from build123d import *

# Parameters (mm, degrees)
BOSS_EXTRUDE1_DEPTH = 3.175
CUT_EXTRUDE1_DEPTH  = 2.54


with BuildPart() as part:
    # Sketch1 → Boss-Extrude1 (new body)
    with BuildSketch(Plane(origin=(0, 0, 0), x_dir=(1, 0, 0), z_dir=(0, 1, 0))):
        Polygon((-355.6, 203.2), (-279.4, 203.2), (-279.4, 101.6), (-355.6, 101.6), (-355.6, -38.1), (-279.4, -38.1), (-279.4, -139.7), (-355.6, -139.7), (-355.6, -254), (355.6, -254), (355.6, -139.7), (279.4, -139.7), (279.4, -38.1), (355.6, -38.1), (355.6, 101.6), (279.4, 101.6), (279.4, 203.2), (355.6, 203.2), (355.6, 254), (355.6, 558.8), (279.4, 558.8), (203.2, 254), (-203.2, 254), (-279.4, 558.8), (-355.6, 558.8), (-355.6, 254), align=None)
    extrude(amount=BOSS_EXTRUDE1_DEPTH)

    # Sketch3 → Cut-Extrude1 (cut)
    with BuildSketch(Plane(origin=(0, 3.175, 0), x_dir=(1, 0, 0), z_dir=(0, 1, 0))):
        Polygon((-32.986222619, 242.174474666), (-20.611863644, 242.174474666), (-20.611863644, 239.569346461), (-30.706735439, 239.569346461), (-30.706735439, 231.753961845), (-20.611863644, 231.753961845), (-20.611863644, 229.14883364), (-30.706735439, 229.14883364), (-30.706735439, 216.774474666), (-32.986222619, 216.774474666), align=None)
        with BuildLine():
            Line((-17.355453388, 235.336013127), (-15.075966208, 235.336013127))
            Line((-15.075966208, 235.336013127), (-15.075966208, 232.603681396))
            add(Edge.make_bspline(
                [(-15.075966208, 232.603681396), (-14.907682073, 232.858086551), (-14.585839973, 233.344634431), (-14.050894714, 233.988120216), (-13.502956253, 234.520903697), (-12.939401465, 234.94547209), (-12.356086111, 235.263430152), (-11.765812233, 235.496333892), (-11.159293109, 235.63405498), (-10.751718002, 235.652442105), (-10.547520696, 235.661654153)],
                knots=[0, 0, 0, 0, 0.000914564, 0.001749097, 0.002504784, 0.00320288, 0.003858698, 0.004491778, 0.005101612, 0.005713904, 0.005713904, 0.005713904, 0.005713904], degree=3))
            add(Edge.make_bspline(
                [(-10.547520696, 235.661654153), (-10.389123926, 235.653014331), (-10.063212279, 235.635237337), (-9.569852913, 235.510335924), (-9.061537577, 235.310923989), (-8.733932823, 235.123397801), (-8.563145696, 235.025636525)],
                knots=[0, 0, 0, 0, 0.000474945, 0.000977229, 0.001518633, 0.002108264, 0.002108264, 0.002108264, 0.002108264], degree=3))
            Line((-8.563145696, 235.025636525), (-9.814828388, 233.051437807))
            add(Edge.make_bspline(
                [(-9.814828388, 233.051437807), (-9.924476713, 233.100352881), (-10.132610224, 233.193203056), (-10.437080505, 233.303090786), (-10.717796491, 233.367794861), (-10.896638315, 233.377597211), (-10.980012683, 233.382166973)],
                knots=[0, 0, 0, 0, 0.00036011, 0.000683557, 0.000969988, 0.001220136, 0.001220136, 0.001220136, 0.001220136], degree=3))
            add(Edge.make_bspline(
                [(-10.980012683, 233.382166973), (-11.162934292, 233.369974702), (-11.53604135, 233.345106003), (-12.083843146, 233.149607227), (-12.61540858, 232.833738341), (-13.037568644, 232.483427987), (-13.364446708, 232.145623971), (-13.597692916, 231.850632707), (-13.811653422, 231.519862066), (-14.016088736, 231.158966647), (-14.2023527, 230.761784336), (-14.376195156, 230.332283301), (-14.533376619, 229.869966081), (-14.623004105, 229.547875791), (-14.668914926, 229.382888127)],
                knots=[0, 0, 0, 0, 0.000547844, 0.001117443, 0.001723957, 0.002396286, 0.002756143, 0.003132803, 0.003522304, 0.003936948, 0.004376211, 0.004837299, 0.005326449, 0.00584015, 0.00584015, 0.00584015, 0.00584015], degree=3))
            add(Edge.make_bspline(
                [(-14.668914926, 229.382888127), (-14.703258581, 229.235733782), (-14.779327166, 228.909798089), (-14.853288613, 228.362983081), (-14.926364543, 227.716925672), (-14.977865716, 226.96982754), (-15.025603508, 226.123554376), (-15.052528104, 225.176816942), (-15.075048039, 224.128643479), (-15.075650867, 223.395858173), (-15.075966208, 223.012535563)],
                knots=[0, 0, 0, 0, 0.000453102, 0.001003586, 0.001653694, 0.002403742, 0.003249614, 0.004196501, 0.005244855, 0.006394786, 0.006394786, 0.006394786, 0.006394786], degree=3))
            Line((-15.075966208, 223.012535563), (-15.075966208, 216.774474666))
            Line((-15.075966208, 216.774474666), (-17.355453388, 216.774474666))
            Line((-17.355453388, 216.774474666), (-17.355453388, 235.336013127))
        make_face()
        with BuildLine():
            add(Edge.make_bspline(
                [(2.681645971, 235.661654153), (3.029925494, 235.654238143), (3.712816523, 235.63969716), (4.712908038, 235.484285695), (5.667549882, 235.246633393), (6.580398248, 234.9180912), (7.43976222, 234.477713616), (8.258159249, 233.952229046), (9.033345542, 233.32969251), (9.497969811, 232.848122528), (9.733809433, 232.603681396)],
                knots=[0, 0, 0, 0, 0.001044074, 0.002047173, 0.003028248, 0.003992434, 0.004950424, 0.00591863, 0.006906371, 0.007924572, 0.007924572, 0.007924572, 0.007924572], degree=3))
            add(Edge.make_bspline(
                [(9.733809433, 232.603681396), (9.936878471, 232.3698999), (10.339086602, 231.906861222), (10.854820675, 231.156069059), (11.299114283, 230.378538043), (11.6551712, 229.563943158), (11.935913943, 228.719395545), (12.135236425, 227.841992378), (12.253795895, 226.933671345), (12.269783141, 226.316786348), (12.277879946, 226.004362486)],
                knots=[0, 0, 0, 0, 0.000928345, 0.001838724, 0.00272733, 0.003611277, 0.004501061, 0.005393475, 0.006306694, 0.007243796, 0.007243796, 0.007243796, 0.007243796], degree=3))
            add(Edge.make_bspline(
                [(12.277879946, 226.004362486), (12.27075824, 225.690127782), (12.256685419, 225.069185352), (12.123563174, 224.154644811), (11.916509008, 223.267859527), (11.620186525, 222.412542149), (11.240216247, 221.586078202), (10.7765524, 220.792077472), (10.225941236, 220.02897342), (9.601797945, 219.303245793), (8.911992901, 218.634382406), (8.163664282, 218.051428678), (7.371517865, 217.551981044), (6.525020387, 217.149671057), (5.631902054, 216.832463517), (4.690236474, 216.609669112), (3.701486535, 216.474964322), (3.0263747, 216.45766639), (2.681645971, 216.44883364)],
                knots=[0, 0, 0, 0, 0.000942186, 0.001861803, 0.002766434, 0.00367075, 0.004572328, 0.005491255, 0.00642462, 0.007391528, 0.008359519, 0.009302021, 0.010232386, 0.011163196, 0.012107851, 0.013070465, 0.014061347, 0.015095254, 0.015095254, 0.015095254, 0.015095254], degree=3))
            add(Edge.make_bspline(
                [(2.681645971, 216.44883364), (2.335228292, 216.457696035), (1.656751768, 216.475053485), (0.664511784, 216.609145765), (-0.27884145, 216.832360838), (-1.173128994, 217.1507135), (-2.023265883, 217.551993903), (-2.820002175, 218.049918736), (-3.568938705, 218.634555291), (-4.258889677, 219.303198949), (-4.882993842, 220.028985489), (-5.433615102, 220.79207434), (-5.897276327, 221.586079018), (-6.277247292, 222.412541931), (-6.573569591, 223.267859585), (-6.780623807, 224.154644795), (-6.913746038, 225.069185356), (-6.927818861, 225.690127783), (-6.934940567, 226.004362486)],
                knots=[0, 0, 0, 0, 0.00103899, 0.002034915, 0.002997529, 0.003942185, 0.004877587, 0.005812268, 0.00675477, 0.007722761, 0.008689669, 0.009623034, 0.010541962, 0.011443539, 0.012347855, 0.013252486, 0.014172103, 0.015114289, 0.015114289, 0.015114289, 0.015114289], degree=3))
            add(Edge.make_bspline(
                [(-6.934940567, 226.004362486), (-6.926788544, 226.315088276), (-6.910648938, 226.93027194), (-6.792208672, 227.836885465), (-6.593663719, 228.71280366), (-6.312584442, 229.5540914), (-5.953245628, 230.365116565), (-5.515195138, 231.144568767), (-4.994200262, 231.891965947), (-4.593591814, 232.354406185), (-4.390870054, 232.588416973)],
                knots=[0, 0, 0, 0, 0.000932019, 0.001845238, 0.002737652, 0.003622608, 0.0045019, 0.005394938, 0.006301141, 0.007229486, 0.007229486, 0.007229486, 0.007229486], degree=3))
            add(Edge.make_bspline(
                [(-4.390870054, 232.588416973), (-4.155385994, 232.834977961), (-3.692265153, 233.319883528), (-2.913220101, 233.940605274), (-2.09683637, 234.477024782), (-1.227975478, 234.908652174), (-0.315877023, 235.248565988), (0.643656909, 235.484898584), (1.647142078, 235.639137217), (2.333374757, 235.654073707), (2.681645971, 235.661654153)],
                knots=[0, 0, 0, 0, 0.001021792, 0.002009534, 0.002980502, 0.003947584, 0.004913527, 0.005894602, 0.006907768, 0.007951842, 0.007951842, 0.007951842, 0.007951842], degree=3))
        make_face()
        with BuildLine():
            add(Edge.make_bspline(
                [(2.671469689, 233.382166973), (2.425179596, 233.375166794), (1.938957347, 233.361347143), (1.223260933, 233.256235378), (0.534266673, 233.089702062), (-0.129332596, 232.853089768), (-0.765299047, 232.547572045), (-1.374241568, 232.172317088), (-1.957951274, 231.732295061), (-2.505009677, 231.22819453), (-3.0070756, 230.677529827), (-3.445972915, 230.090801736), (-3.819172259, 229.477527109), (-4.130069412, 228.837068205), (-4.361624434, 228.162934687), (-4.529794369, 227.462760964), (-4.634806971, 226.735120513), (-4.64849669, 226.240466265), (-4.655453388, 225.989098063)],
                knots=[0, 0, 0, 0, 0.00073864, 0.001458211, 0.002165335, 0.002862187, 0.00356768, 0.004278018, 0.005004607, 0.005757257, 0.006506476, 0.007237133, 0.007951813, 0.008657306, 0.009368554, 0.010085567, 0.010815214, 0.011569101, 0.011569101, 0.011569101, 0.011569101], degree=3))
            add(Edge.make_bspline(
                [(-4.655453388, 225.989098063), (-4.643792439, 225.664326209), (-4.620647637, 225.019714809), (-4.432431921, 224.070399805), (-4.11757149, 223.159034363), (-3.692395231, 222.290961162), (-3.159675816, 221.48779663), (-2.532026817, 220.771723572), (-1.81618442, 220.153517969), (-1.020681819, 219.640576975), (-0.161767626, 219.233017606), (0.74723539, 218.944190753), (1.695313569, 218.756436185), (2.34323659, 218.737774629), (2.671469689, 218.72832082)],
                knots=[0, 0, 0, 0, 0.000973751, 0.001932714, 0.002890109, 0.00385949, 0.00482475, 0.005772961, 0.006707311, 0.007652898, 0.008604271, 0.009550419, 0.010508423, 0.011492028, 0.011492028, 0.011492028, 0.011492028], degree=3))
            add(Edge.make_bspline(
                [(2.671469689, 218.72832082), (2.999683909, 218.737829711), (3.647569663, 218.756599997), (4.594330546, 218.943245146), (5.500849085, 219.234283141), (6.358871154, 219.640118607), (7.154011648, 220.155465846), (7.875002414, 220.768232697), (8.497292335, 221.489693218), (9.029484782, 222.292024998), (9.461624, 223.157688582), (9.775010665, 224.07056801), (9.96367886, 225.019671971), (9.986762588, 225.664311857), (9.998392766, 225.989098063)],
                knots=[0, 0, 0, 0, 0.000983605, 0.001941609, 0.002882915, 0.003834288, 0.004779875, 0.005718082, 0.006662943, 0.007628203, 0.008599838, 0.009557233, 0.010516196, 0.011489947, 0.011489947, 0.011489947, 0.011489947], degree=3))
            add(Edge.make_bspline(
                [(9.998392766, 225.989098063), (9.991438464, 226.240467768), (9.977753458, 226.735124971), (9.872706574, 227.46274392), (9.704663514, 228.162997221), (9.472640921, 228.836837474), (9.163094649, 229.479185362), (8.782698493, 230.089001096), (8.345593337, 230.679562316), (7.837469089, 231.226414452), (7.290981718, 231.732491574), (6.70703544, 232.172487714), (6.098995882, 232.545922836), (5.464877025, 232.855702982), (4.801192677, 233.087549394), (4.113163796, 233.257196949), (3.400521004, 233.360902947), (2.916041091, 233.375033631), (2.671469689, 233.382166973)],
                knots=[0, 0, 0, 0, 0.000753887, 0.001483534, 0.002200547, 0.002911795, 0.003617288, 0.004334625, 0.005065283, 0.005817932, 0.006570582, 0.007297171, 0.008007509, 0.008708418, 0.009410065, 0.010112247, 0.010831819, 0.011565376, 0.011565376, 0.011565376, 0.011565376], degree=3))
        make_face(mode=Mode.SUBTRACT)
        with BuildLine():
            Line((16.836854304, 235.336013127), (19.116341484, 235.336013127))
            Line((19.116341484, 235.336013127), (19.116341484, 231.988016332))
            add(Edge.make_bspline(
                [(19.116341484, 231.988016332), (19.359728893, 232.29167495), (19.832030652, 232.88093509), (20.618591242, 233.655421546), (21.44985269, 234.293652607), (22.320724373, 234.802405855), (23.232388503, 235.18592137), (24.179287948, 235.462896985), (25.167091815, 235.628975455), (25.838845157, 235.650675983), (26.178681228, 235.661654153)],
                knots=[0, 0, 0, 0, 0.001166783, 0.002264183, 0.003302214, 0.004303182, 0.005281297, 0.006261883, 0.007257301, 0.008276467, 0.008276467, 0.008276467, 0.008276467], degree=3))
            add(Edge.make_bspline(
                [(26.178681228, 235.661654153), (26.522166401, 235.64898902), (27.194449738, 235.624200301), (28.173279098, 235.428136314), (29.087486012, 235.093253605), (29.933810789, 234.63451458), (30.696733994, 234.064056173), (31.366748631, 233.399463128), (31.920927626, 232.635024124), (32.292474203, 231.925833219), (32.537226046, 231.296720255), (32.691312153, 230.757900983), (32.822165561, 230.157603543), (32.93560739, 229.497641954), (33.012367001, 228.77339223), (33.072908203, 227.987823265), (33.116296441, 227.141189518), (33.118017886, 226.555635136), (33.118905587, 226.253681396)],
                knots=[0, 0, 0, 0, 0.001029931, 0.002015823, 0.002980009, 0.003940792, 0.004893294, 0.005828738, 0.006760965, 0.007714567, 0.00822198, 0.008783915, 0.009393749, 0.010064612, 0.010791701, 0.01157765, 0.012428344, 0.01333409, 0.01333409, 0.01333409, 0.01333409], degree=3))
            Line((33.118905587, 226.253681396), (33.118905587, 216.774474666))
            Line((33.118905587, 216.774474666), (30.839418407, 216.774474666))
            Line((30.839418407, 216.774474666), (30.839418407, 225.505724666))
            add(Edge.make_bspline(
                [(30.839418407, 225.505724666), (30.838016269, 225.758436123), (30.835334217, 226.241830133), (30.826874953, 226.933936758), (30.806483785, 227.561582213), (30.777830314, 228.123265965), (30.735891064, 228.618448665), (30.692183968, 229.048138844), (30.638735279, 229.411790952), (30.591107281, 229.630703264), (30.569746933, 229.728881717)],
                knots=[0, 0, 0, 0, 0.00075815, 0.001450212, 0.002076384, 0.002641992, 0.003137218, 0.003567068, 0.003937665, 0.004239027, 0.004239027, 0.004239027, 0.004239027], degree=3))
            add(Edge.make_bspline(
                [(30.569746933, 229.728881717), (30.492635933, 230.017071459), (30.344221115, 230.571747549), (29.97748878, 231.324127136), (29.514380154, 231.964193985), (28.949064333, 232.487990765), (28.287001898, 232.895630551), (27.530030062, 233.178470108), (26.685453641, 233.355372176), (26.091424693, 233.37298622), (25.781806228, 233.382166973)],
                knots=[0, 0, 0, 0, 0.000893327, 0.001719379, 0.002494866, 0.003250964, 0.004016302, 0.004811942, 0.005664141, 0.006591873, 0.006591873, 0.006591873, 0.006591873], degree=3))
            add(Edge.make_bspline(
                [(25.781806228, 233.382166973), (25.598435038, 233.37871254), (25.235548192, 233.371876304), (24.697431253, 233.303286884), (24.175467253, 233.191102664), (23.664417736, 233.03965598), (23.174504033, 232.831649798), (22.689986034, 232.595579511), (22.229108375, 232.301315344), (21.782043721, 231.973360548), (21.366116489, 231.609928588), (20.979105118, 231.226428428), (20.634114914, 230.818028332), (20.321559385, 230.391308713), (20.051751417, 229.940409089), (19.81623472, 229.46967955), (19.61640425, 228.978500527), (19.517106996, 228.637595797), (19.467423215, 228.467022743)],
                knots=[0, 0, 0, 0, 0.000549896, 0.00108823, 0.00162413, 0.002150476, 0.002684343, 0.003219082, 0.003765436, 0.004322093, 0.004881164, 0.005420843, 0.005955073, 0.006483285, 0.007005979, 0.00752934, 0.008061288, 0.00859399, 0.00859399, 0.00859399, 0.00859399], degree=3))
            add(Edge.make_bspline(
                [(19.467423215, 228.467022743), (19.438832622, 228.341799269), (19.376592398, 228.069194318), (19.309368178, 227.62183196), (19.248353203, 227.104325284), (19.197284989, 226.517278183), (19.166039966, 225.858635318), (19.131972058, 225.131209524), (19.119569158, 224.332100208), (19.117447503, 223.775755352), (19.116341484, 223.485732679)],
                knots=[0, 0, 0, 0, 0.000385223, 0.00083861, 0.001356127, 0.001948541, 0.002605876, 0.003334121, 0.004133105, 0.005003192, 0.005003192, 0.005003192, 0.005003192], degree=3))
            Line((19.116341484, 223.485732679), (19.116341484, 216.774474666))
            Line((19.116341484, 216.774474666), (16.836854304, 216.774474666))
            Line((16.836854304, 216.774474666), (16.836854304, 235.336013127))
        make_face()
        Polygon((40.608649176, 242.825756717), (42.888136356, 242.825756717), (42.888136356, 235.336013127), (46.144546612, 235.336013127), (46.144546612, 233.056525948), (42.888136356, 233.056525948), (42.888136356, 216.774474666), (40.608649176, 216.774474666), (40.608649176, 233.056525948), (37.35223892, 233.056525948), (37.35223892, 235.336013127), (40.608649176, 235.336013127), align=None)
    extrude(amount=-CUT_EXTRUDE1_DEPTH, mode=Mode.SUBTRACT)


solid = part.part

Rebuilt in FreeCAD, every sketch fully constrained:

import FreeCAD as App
import Part
import Sketcher
Q = App.Units.Quantity

doc = App.newDocument("Part")
body = doc.addObject("PartDesign::Body", "Body")

# Sketch on XZ plane
sketch1 = body.newObject("Sketcher::SketchObject", "Sketch")
sketch1.AttachmentSupport = (doc.getObject("XZ_Plane"), [""])
sketch1.MapMode = "FlatFace"
sketch1.addGeometry(Part.LineSegment(App.Vector(-356, -203, 0), App.Vector(-279, -203, 0)), False)
sketch1.addGeometry(Part.LineSegment(App.Vector(-279, -203, 0), App.Vector(-279, -102, 0)), False)
sketch1.addGeometry(Part.LineSegment(App.Vector(-279, -102, 0), App.Vector(-356, -102, 0)), False)
sketch1.addGeometry(Part.LineSegment(App.Vector(-356, -102, 0), App.Vector(-356, 38, 0)), False)
sketch1.addGeometry(Part.LineSegment(App.Vector(-356, 38, 0), App.Vector(-279, 38, 0)), False)
sketch1.addGeometry(Part.LineSegment(App.Vector(-279, 38, 0), App.Vector(-279, 140, 0)), False)
sketch1.addGeometry(Part.LineSegment(App.Vector(-279, 140, 0), App.Vector(-356, 140, 0)), False)
sketch1.addGeometry(Part.LineSegment(App.Vector(-356, 140, 0), App.Vector(-356, 254, 0)), False)
sketch1.addGeometry(Part.LineSegment(App.Vector(-356, 254, 0), App.Vector(356, 254, 0)), False)
sketch1.addGeometry(Part.LineSegment(App.Vector(356, 254, 0), App.Vector(356, 140, 0)), False)
sketch1.addGeometry(Part.LineSegment(App.Vector(356, 140, 0), App.Vector(279, 140, 0)), False)
sketch1.addGeometry(Part.LineSegment(App.Vector(279, 140, 0), App.Vector(279, 38, 0)), False)
sketch1.addGeometry(Part.LineSegment(App.Vector(279, 38, 0), App.Vector(356, 38, 0)), False)
sketch1.addGeometry(Part.LineSegment(App.Vector(356, 38, 0), App.Vector(356, -102, 0)), False)
sketch1.addGeometry(Part.LineSegment(App.Vector(356, -102, 0), App.Vector(279, -102, 0)), False)
sketch1.addGeometry(Part.LineSegment(App.Vector(279, -102, 0), App.Vector(279, -203, 0)), False)
sketch1.addGeometry(Part.LineSegment(App.Vector(279, -203, 0), App.Vector(356, -203, 0)), False)
sketch1.addGeometry(Part.LineSegment(App.Vector(356, -203, 0), App.Vector(356, -559, 0)), False)
sketch1.addGeometry(Part.LineSegment(App.Vector(356, -559, 0), App.Vector(279, -559, 0)), False)
sketch1.addGeometry(Part.LineSegment(App.Vector(279, -559, 0), App.Vector(203, -254, 0)), False)
sketch1.addGeometry(Part.LineSegment(App.Vector(203, -254, 0), App.Vector(-203, -254, 0)), False)
sketch1.addGeometry(Part.LineSegment(App.Vector(-203, -254, 0), App.Vector(-279, -559, 0)), False)
sketch1.addGeometry(Part.LineSegment(App.Vector(-279, -559, 0), App.Vector(-356, -559, 0)), False)
sketch1.addGeometry(Part.LineSegment(App.Vector(-356, -559, 0), App.Vector(-356, -203, 0)), False)
sketch1.addConstraint(Sketcher.Constraint("Coincident", 0, 2, 1, 1))
sketch1.addConstraint(Sketcher.Constraint("Coincident", 1, 2, 2, 1))
sketch1.addConstraint(Sketcher.Constraint("Coincident", 2, 2, 3, 1))
sketch1.addConstraint(Sketcher.Constraint("Coincident", 3, 2, 4, 1))
sketch1.addConstraint(Sketcher.Constraint("Coincident", 4, 2, 5, 1))
sketch1.addConstraint(Sketcher.Constraint("Coincident", 5, 2, 6, 1))
sketch1.addConstraint(Sketcher.Constraint("Coincident", 6, 2, 7, 1))
sketch1.addConstraint(Sketcher.Constraint("Coincident", 7, 2, 8, 1))
sketch1.addConstraint(Sketcher.Constraint("Coincident", 8, 2, 9, 1))
sketch1.addConstraint(Sketcher.Constraint("Coincident", 9, 2, 10, 1))
sketch1.addConstraint(Sketcher.Constraint("Coincident", 10, 2, 11, 1))
sketch1.addConstraint(Sketcher.Constraint("Coincident", 11, 2, 12, 1))
sketch1.addConstraint(Sketcher.Constraint("Coincident", 12, 2, 13, 1))
sketch1.addConstraint(Sketcher.Constraint("Coincident", 13, 2, 14, 1))
sketch1.addConstraint(Sketcher.Constraint("Coincident", 14, 2, 15, 1))
sketch1.addConstraint(Sketcher.Constraint("Coincident", 15, 2, 16, 1))
sketch1.addConstraint(Sketcher.Constraint("Coincident", 16, 2, 17, 1))
sketch1.addConstraint(Sketcher.Constraint("Coincident", 17, 2, 18, 1))
sketch1.addConstraint(Sketcher.Constraint("Coincident", 18, 2, 19, 1))
sketch1.addConstraint(Sketcher.Constraint("Coincident", 19, 2, 20, 1))
sketch1.addConstraint(Sketcher.Constraint("Coincident", 20, 2, 21, 1))
sketch1.addConstraint(Sketcher.Constraint("Coincident", 21, 2, 22, 1))
sketch1.addConstraint(Sketcher.Constraint("Coincident", 22, 2, 23, 1))
sketch1.addConstraint(Sketcher.Constraint("Coincident", 23, 2, 0, 1))
sketch1.addConstraint(Sketcher.Constraint("Horizontal", 0))
sketch1.addConstraint(Sketcher.Constraint("Vertical", 1))
sketch1.addConstraint(Sketcher.Constraint("Horizontal", 2))
sketch1.addConstraint(Sketcher.Constraint("Vertical", 3))
sketch1.addConstraint(Sketcher.Constraint("Horizontal", 4))
sketch1.addConstraint(Sketcher.Constraint("Vertical", 5))
sketch1.addConstraint(Sketcher.Constraint("Horizontal", 6))
sketch1.addConstraint(Sketcher.Constraint("Vertical", 7))
sketch1.addConstraint(Sketcher.Constraint("Horizontal", 8))
sketch1.addConstraint(Sketcher.Constraint("Vertical", 9))
sketch1.addConstraint(Sketcher.Constraint("Horizontal", 10))
sketch1.addConstraint(Sketcher.Constraint("Vertical", 11))
sketch1.addConstraint(Sketcher.Constraint("Horizontal", 12))
sketch1.addConstraint(Sketcher.Constraint("Vertical", 13))
sketch1.addConstraint(Sketcher.Constraint("Horizontal", 14))
sketch1.addConstraint(Sketcher.Constraint("Vertical", 15))
sketch1.addConstraint(Sketcher.Constraint("Horizontal", 16))
sketch1.addConstraint(Sketcher.Constraint("Vertical", 17))
sketch1.addConstraint(Sketcher.Constraint("Horizontal", 18))
sketch1.addConstraint(Sketcher.Constraint("Horizontal", 20))
sketch1.addConstraint(Sketcher.Constraint("Horizontal", 22))
sketch1.addConstraint(Sketcher.Constraint("Vertical", 23))
sketch1.addConstraint(Sketcher.Constraint("Symmetric", 6, 2, 9, 2, -2))
sketch1.addConstraint(Sketcher.Constraint("Symmetric", 4, 2, 11, 2, -2))
sketch1.addConstraint(Sketcher.Constraint("Symmetric", 2, 2, 13, 2, -2))
sketch1.addConstraint(Sketcher.Constraint("Symmetric", 0, 2, 15, 2, -2))
sketch1.addConstraint(Sketcher.Constraint("Symmetric", 18, 2, 21, 2, -2))
sketch1.addConstraint(Sketcher.Constraint("Vertical", 1, 2, 4, 2))
sketch1.addConstraint(Sketcher.Constraint("Vertical", 3, 2, 6, 2))
sketch1.addConstraint(Sketcher.Constraint("Vertical", 13, 2, 16, 2))
sketch1.addConstraint(Sketcher.Constraint("Vertical", 15, 2, 18, 2))
sketch1.addConstraint(Sketcher.Constraint("Vertical", 7, 2, 22, 2))
sketch1.addConstraint(Sketcher.Constraint("Equal", 1, 5))
sketch1.addConstraint(Sketcher.Constraint("Equal", 19, 21))
sketch1.addConstraint(Sketcher.Constraint("DistanceX", 0, 1, 0, 2, Q("3 in")))
sketch1.addConstraint(Sketcher.Constraint("DistanceX", 8, 1, 8, 2, Q("28 in")))
sketch1.addConstraint(Sketcher.Constraint("DistanceX", 20, 2, 20, 1, Q("16 in")))
sketch1.addConstraint(Sketcher.Constraint("DistanceY", 1, 1, 1, 2, Q("4 in")))
sketch1.addConstraint(Sketcher.Constraint("DistanceY", 17, 2, 17, 1, Q("14 in")))
sketch1.addConstraint(Sketcher.Constraint("DistanceY", 3, 1, 3, 2, Q("5.5 in")))
sketch1.addConstraint(Sketcher.Constraint("DistanceY", 7, 1, 7, 2, Q("4.5 in")))
sketch1.addConstraint(Sketcher.Constraint("DistanceY", 0, 2, -1, 1, Q("8 in")))
sketch1.addConstraint(Sketcher.Constraint("DistanceY", 19, 2, -1, 1, Q("10 in")))
pad1 = body.newObject("PartDesign::Pad", "Pad")
pad1.Profile = sketch1
pad1.Length = Q("0.125 in")
pad1.Reversed = True

# Sketch on XZ plane
sketch2 = body.newObject("Sketcher::SketchObject", "Sketch001")
sketch2.AttachmentSupport = (doc.getObject("XZ_Plane"), [""])
sketch2.MapMode = "FlatFace"
sketch2.AttachmentOffset = App.Placement(App.Vector(0, 0, -0.125 * 25.4), App.Rotation())
sketch2.addGeometry(Part.LineSegment(App.Vector(-20.611864, -242.174475, 0), App.Vector(-32.986223, -242.174475, 0)), False)
sketch2.addGeometry(Part.LineSegment(App.Vector(-32.986223, -242.174475, 0), App.Vector(-32.986223, -216.774475, 0)), False)
sketch2.addGeometry(Part.LineSegment(App.Vector(-32.986223, -216.774475, 0), App.Vector(-30.706735, -216.774475, 0)), False)
sketch2.addGeometry(Part.LineSegment(App.Vector(-30.706735, -216.774475, 0), App.Vector(-30.706735, -229.148834, 0)), False)
sketch2.addGeometry(Part.LineSegment(App.Vector(-30.706735, -229.148834, 0), App.Vector(-20.611864, -229.148834, 0)), False)
sketch2.addGeometry(Part.LineSegment(App.Vector(-20.611864, -229.148834, 0), App.Vector(-20.611864, -231.753962, 0)), False)
sketch2.addGeometry(Part.LineSegment(App.Vector(-20.611864, -231.753962, 0), App.Vector(-30.706735, -231.753962, 0)), False)
sketch2.addGeometry(Part.LineSegment(App.Vector(-30.706735, -231.753962, 0), App.Vector(-30.706735, -239.569346, 0)), False)
sketch2.addGeometry(Part.LineSegment(App.Vector(-30.706735, -239.569346, 0), App.Vector(-20.611864, -239.569346, 0)), False)
sketch2.addGeometry(Part.LineSegment(App.Vector(-20.611864, -239.569346, 0), App.Vector(-20.611864, -242.174475, 0)), False)
sketch2.addGeometry(Part.LineSegment(App.Vector(-15.075966, -235.336013, 0), App.Vector(-17.355453, -235.336013, 0)), False)
sketch2.addGeometry(Part.LineSegment(App.Vector(-17.355453, -235.336013, 0), App.Vector(-17.355453, -216.774475, 0)), False)
sketch2.addGeometry(Part.LineSegment(App.Vector(-17.355453, -216.774475, 0), App.Vector(-15.075966, -216.774475, 0)), False)
sketch2.addGeometry(Part.LineSegment(App.Vector(-15.075966, -216.774475, 0), App.Vector(-15.075966, -223.012536, 0)), False)
sketch2.addGeometry(Part.BSplineCurve([App.Vector(-14.668915, -229.382888, 0), App.Vector(-14.703259, -229.235734, 0), App.Vector(-14.779327, -228.909798, 0), App.Vector(-14.853289, -228.362983, 0), App.Vector(-14.926365, -227.716926, 0), App.Vector(-14.977866, -226.969828, 0), App.Vector(-15.025604, -226.123554, 0), App.Vector(-15.052528, -225.176817, 0), App.Vector(-15.075048, -224.128643, 0), App.Vector(-15.075651, -223.395858, 0), App.Vector(-15.075966, -223.012536, 0)], [4, 1, 1, 1, 1, 1, 1, 1, 4], [0, 0.000453102, 0.001003586, 0.001653694, 0.002403742, 0.003249614, 0.004196501, 0.005244855, 0.006394786], False, 3, [1, 1, 1, 1, 1, 1, 1, 1, 1, 1, 1], False), False)
sketch2.addGeometry(Part.BSplineCurve([App.Vector(-10.980013, -233.382167, 0), App.Vector(-11.162934, -233.369975, 0), App.Vector(-11.536041, -233.345106, 0), App.Vector(-12.083843, -233.149607, 0), App.Vector(-12.615409, -232.833738, 0), App.Vector(-13.037569, -232.483428, 0), App.Vector(-13.364447, -232.145624, 0), App.Vector(-13.597693, -231.850633, 0), App.Vector(-13.811653, -231.519862, 0), App.Vector(-14.016089, -231.158967, 0), App.Vector(-14.202353, -230.761784, 0), App.Vector(-14.376195, -230.332283, 0), App.Vector(-14.533377, -229.869966, 0), App.Vector(-14.623004, -229.547876, 0), App.Vector(-14.668915, -229.382888, 0)], [4, 1, 1, 1, 1, 1, 1, 1, 1, 1, 1, 1, 4], [0, 0.000547844, 0.001117443, 0.001723957, 0.002396286, 0.002756143, 0.003132803, 0.003522304, 0.003936948, 0.004376211, 0.004837299, 0.005326449, 0.00584015], False, 3, [1, 1, 1, 1, 1, 1, 1, 1, 1, 1, 1, 1, 1, 1, 1], False), False)
sketch2.addGeometry(Part.BSplineCurve([App.Vector(-9.814828, -233.051438, 0), App.Vector(-9.924477, -233.100353, 0), App.Vector(-10.13261, -233.193203, 0), App.Vector(-10.437081, -233.303091, 0), App.Vector(-10.717796, -233.367795, 0), App.Vector(-10.896638, -233.377597, 0), App.Vector(-10.980013, -233.382167, 0)], [4, 1, 1, 1, 4], [0, 0.00036011, 0.000683557, 0.000969988, 0.001220136], False, 3, [1, 1, 1, 1, 1, 1, 1], False), False)
sketch2.addGeometry(Part.LineSegment(App.Vector(-9.814828, -233.051438, 0), App.Vector(-8.563146, -235.025637, 0)), False)
sketch2.addGeometry(Part.BSplineCurve([App.Vector(-10.547521, -235.661654, 0), App.Vector(-10.389124, -235.653014, 0), App.Vector(-10.063212, -235.635237, 0), App.Vector(-9.569853, -235.510336, 0), App.Vector(-9.061538, -235.310924, 0), App.Vector(-8.733933, -235.123398, 0), App.Vector(-8.563146, -235.025637, 0)], [4, 1, 1, 1, 4], [0, 0.000474945, 0.000977229, 0.001518633, 0.002108264], False, 3, [1, 1, 1, 1, 1, 1, 1], False), False)
sketch2.addGeometry(Part.BSplineCurve([App.Vector(-15.075966, -232.603681, 0), App.Vector(-14.907682, -232.858087, 0), App.Vector(-14.58584, -233.344634, 0), App.Vector(-14.050895, -233.98812, 0), App.Vector(-13.502956, -234.520904, 0), App.Vector(-12.939401, -234.945472, 0), App.Vector(-12.356086, -235.26343, 0), App.Vector(-11.765812, -235.496334, 0), App.Vector(-11.159293, -235.634055, 0), App.Vector(-10.751718, -235.652442, 0), App.Vector(-10.547521, -235.661654, 0)], [4, 1, 1, 1, 1, 1, 1, 1, 4], [0, 0.000914564, 0.001749097, 0.002504784, 0.00320288, 0.003858698, 0.004491778, 0.005101612, 0.005713904], False, 3, [1, 1, 1, 1, 1, 1, 1, 1, 1, 1, 1], False), False)
sketch2.addGeometry(Part.LineSegment(App.Vector(-15.075966, -232.603681, 0), App.Vector(-15.075966, -235.336013, 0)), False)
sketch2.addGeometry(Part.BSplineCurve([App.Vector(2.681646, -235.661654, 0), App.Vector(3.029925, -235.654238, 0), App.Vector(3.712817, -235.639697, 0), App.Vector(4.712908, -235.484286, 0), App.Vector(5.66755, -235.246633, 0), App.Vector(6.580398, -234.918091, 0), App.Vector(7.439762, -234.477714, 0), App.Vector(8.258159, -233.952229, 0), App.Vector(9.033346, -233.329693, 0), App.Vector(9.49797, -232.848123, 0), App.Vector(9.733809, -232.603681, 0)], [4, 1, 1, 1, 1, 1, 1, 1, 4], [0, 0.001044074, 0.002047173, 0.003028248, 0.003992434, 0.004950424, 0.00591863, 0.006906371, 0.007924572], False, 3, [1, 1, 1, 1, 1, 1, 1, 1, 1, 1, 1], False), False)
sketch2.addGeometry(Part.BSplineCurve([App.Vector(-4.39087, -232.588417, 0), App.Vector(-4.155386, -232.834978, 0), App.Vector(-3.692265, -233.319884, 0), App.Vector(-2.91322, -233.940605, 0), App.Vector(-2.096836, -234.477025, 0), App.Vector(-1.227975, -234.908652, 0), App.Vector(-0.315877, -235.248566, 0), App.Vector(0.643657, -235.484899, 0), App.Vector(1.647142, -235.639137, 0), App.Vector(2.333375, -235.654074, 0), App.Vector(2.681646, -235.661654, 0)], [4, 1, 1, 1, 1, 1, 1, 1, 4], [0, 0.001021792, 0.002009534, 0.002980502, 0.003947584, 0.004913527, 0.005894602, 0.006907768, 0.007951842], False, 3, [1, 1, 1, 1, 1, 1, 1, 1, 1, 1, 1], False), False)
sketch2.addGeometry(Part.BSplineCurve([App.Vector(-6.934941, -226.004362, 0), App.Vector(-6.926789, -226.315088, 0), App.Vector(-6.910649, -226.930272, 0), App.Vector(-6.792209, -227.836885, 0), App.Vector(-6.593664, -228.712804, 0), App.Vector(-6.312584, -229.554091, 0), App.Vector(-5.953246, -230.365117, 0), App.Vector(-5.515195, -231.144569, 0), App.Vector(-4.9942, -231.891966, 0), App.Vector(-4.593592, -232.354406, 0), App.Vector(-4.39087, -232.588417, 0)], [4, 1, 1, 1, 1, 1, 1, 1, 4], [0, 0.000932019, 0.001845238, 0.002737652, 0.003622608, 0.0045019, 0.005394938, 0.006301141, 0.007229486], False, 3, [1, 1, 1, 1, 1, 1, 1, 1, 1, 1, 1], False), False)
sketch2.addGeometry(Part.BSplineCurve([App.Vector(2.681646, -216.448834, 0), App.Vector(2.335228, -216.457696, 0), App.Vector(1.656752, -216.475053, 0), App.Vector(0.664512, -216.609146, 0), App.Vector(-0.278841, -216.832361, 0), App.Vector(-1.173129, -217.150713, 0), App.Vector(-2.023266, -217.551994, 0), App.Vector(-2.820002, -218.049919, 0), App.Vector(-3.568939, -218.634555, 0), App.Vector(-4.25889, -219.303199, 0), App.Vector(-4.882994, -220.028985, 0), App.Vector(-5.433615, -220.792074, 0), App.Vector(-5.897276, -221.586079, 0), App.Vector(-6.277247, -222.412542, 0), App.Vector(-6.57357, -223.26786, 0), App.Vector(-6.780624, -224.154645, 0), App.Vector(-6.913746, -225.069185, 0), App.Vector(-6.927819, -225.690128, 0), App.Vector(-6.934941, -226.004362, 0)], [4, 1, 1, 1, 1, 1, 1, 1, 1, 1, 1, 1, 1, 1, 1, 1, 4], [0, 0.00103899, 0.002034915, 0.002997529, 0.003942185, 0.004877587, 0.005812268, 0.00675477, 0.007722761, 0.008689669, 0.009623034, 0.010541962, 0.011443539, 0.012347855, 0.013252486, 0.014172103, 0.015114289], False, 3, [1, 1, 1, 1, 1, 1, 1, 1, 1, 1, 1, 1, 1, 1, 1, 1, 1, 1, 1], False), False)
sketch2.addGeometry(Part.BSplineCurve([App.Vector(12.27788, -226.004362, 0), App.Vector(12.270758, -225.690128, 0), App.Vector(12.256685, -225.069185, 0), App.Vector(12.123563, -224.154645, 0), App.Vector(11.916509, -223.26786, 0), App.Vector(11.620187, -222.412542, 0), App.Vector(11.240216, -221.586078, 0), App.Vector(10.776552, -220.792077, 0), App.Vector(10.225941, -220.028973, 0), App.Vector(9.601798, -219.303246, 0), App.Vector(8.911993, -218.634382, 0), App.Vector(8.163664, -218.051429, 0), App.Vector(7.371518, -217.551981, 0), App.Vector(6.52502, -217.149671, 0), App.Vector(5.631902, -216.832464, 0), App.Vector(4.690236, -216.609669, 0), App.Vector(3.701487, -216.474964, 0), App.Vector(3.026375, -216.457666, 0), App.Vector(2.681646, -216.448834, 0)], [4, 1, 1, 1, 1, 1, 1, 1, 1, 1, 1, 1, 1, 1, 1, 1, 4], [0, 0.000942186, 0.001861803, 0.002766434, 0.00367075, 0.004572328, 0.005491255, 0.00642462, 0.007391528, 0.008359519, 0.009302021, 0.010232386, 0.011163196, 0.012107851, 0.013070465, 0.014061347, 0.015095254], False, 3, [1, 1, 1, 1, 1, 1, 1, 1, 1, 1, 1, 1, 1, 1, 1, 1, 1, 1, 1], False), False)
sketch2.addGeometry(Part.BSplineCurve([App.Vector(9.733809, -232.603681, 0), App.Vector(9.936878, -232.3699, 0), App.Vector(10.339087, -231.906861, 0), App.Vector(10.854821, -231.156069, 0), App.Vector(11.299114, -230.378538, 0), App.Vector(11.655171, -229.563943, 0), App.Vector(11.935914, -228.719396, 0), App.Vector(12.135236, -227.841992, 0), App.Vector(12.253796, -226.933671, 0), App.Vector(12.269783, -226.316786, 0), App.Vector(12.27788, -226.004362, 0)], [4, 1, 1, 1, 1, 1, 1, 1, 4], [0, 0.000928345, 0.001838724, 0.00272733, 0.003611277, 0.004501061, 0.005393475, 0.006306694, 0.007243796], False, 3, [1, 1, 1, 1, 1, 1, 1, 1, 1, 1, 1], False), False)
sketch2.addGeometry(Part.BSplineCurve([App.Vector(9.998393, -225.989098, 0), App.Vector(9.991438, -226.240468, 0), App.Vector(9.977753, -226.735125, 0), App.Vector(9.872707, -227.462744, 0), App.Vector(9.704664, -228.162997, 0), App.Vector(9.472641, -228.836837, 0), App.Vector(9.163095, -229.479185, 0), App.Vector(8.782698, -230.089001, 0), App.Vector(8.345593, -230.679562, 0), App.Vector(7.837469, -231.226414, 0), App.Vector(7.290982, -231.732492, 0), App.Vector(6.707035, -232.172488, 0), App.Vector(6.098996, -232.545923, 0), App.Vector(5.464877, -232.855703, 0), App.Vector(4.801193, -233.087549, 0), App.Vector(4.113164, -233.257197, 0), App.Vector(3.400521, -233.360903, 0), App.Vector(2.916041, -233.375034, 0), App.Vector(2.67147, -233.382167, 0)], [4, 1, 1, 1, 1, 1, 1, 1, 1, 1, 1, 1, 1, 1, 1, 1, 4], [0, 0.000753887, 0.001483534, 0.002200547, 0.002911795, 0.003617288, 0.004334625, 0.005065283, 0.005817932, 0.006570582, 0.007297171, 0.008007509, 0.008708418, 0.009410065, 0.010112247, 0.010831819, 0.011565376], False, 3, [1, 1, 1, 1, 1, 1, 1, 1, 1, 1, 1, 1, 1, 1, 1, 1, 1, 1, 1], False), False)
sketch2.addGeometry(Part.BSplineCurve([App.Vector(2.67147, -218.728321, 0), App.Vector(2.999684, -218.73783, 0), App.Vector(3.64757, -218.7566, 0), App.Vector(4.594331, -218.943245, 0), App.Vector(5.500849, -219.234283, 0), App.Vector(6.358871, -219.640119, 0), App.Vector(7.154012, -220.155466, 0), App.Vector(7.875002, -220.768233, 0), App.Vector(8.497292, -221.489693, 0), App.Vector(9.029485, -222.292025, 0), App.Vector(9.461624, -223.157689, 0), App.Vector(9.775011, -224.070568, 0), App.Vector(9.963679, -225.019672, 0), App.Vector(9.986763, -225.664312, 0), App.Vector(9.998393, -225.989098, 0)], [4, 1, 1, 1, 1, 1, 1, 1, 1, 1, 1, 1, 4], [0, 0.000983605, 0.001941609, 0.002882915, 0.003834288, 0.004779875, 0.005718082, 0.006662943, 0.007628203, 0.008599838, 0.009557233, 0.010516196, 0.011489947], False, 3, [1, 1, 1, 1, 1, 1, 1, 1, 1, 1, 1, 1, 1, 1, 1], False), False)
sketch2.addGeometry(Part.BSplineCurve([App.Vector(-4.655453, -225.989098, 0), App.Vector(-4.643792, -225.664326, 0), App.Vector(-4.620648, -225.019715, 0), App.Vector(-4.432432, -224.0704, 0), App.Vector(-4.117571, -223.159034, 0), App.Vector(-3.692395, -222.290961, 0), App.Vector(-3.159676, -221.487797, 0), App.Vector(-2.532027, -220.771724, 0), App.Vector(-1.816184, -220.153518, 0), App.Vector(-1.020682, -219.640577, 0), App.Vector(-0.161768, -219.233018, 0), App.Vector(0.747235, -218.944191, 0), App.Vector(1.695314, -218.756436, 0), App.Vector(2.343237, -218.737775, 0), App.Vector(2.67147, -218.728321, 0)], [4, 1, 1, 1, 1, 1, 1, 1, 1, 1, 1, 1, 4], [0, 0.000973751, 0.001932714, 0.002890109, 0.00385949, 0.00482475, 0.005772961, 0.006707311, 0.007652898, 0.008604271, 0.009550419, 0.010508423, 0.011492028], False, 3, [1, 1, 1, 1, 1, 1, 1, 1, 1, 1, 1, 1, 1, 1, 1], False), False)
sketch2.addGeometry(Part.BSplineCurve([App.Vector(2.67147, -233.382167, 0), App.Vector(2.42518, -233.375167, 0), App.Vector(1.938957, -233.361347, 0), App.Vector(1.223261, -233.256235, 0), App.Vector(0.534267, -233.089702, 0), App.Vector(-0.129333, -232.85309, 0), App.Vector(-0.765299, -232.547572, 0), App.Vector(-1.374242, -232.172317, 0), App.Vector(-1.957951, -231.732295, 0), App.Vector(-2.50501, -231.228195, 0), App.Vector(-3.007076, -230.67753, 0), App.Vector(-3.445973, -230.090802, 0), App.Vector(-3.819172, -229.477527, 0), App.Vector(-4.130069, -228.837068, 0), App.Vector(-4.361624, -228.162935, 0), App.Vector(-4.529794, -227.462761, 0), App.Vector(-4.634807, -226.735121, 0), App.Vector(-4.648497, -226.240466, 0), App.Vector(-4.655453, -225.989098, 0)], [4, 1, 1, 1, 1, 1, 1, 1, 1, 1, 1, 1, 1, 1, 1, 1, 4], [0, 0.00073864, 0.001458211, 0.002165335, 0.002862187, 0.00356768, 0.004278018, 0.005004607, 0.005757257, 0.006506476, 0.007237133, 0.007951813, 0.008657306, 0.009368554, 0.010085567, 0.010815214, 0.011569101], False, 3, [1, 1, 1, 1, 1, 1, 1, 1, 1, 1, 1, 1, 1, 1, 1, 1, 1, 1, 1], False), False)
sketch2.addGeometry(Part.LineSegment(App.Vector(19.116341, -235.336013, 0), App.Vector(16.836854, -235.336013, 0)), False)
sketch2.addGeometry(Part.LineSegment(App.Vector(16.836854, -235.336013, 0), App.Vector(16.836854, -216.774475, 0)), False)
sketch2.addGeometry(Part.LineSegment(App.Vector(16.836854, -216.774475, 0), App.Vector(19.116341, -216.774475, 0)), False)
sketch2.addGeometry(Part.LineSegment(App.Vector(19.116341, -216.774475, 0), App.Vector(19.116341, -223.485733, 0)), False)
sketch2.addGeometry(Part.BSplineCurve([App.Vector(19.467423, -228.467023, 0), App.Vector(19.438833, -228.341799, 0), App.Vector(19.376592, -228.069194, 0), App.Vector(19.309368, -227.621832, 0), App.Vector(19.248353, -227.104325, 0), App.Vector(19.197285, -226.517278, 0), App.Vector(19.16604, -225.858635, 0), App.Vector(19.131972, -225.13121, 0), App.Vector(19.119569, -224.3321, 0), App.Vector(19.117448, -223.775755, 0), App.Vector(19.116341, -223.485733, 0)], [4, 1, 1, 1, 1, 1, 1, 1, 4], [0, 0.000385223, 0.00083861, 0.001356127, 0.001948541, 0.002605876, 0.003334121, 0.004133105, 0.005003192], False, 3, [1, 1, 1, 1, 1, 1, 1, 1, 1, 1, 1], False), False)
sketch2.addGeometry(Part.BSplineCurve([App.Vector(25.781806, -233.382167, 0), App.Vector(25.598435, -233.378713, 0), App.Vector(25.235548, -233.371876, 0), App.Vector(24.697431, -233.303287, 0), App.Vector(24.175467, -233.191103, 0), App.Vector(23.664418, -233.039656, 0), App.Vector(23.174504, -232.83165, 0), App.Vector(22.689986, -232.59558, 0), App.Vector(22.229108, -232.301315, 0), App.Vector(21.782044, -231.973361, 0), App.Vector(21.366116, -231.609929, 0), App.Vector(20.979105, -231.226428, 0), App.Vector(20.634115, -230.818028, 0), App.Vector(20.321559, -230.391309, 0), App.Vector(20.051751, -229.940409, 0), App.Vector(19.816235, -229.46968, 0), App.Vector(19.616404, -228.978501, 0), App.Vector(19.517107, -228.637596, 0), App.Vector(19.467423, -228.467023, 0)], [4, 1, 1, 1, 1, 1, 1, 1, 1, 1, 1, 1, 1, 1, 1, 1, 4], [0, 0.000549896, 0.00108823, 0.00162413, 0.002150476, 0.002684343, 0.003219082, 0.003765436, 0.004322093, 0.004881164, 0.005420843, 0.005955073, 0.006483285, 0.007005979, 0.00752934, 0.008061288, 0.00859399], False, 3, [1, 1, 1, 1, 1, 1, 1, 1, 1, 1, 1, 1, 1, 1, 1, 1, 1, 1, 1], False), False)
sketch2.addGeometry(Part.BSplineCurve([App.Vector(30.569747, -229.728882, 0), App.Vector(30.492636, -230.017071, 0), App.Vector(30.344221, -230.571748, 0), App.Vector(29.977489, -231.324127, 0), App.Vector(29.51438, -231.964194, 0), App.Vector(28.949064, -232.487991, 0), App.Vector(28.287002, -232.895631, 0), App.Vector(27.53003, -233.17847, 0), App.Vector(26.685454, -233.355372, 0), App.Vector(26.091425, -233.372986, 0), App.Vector(25.781806, -233.382167, 0)], [4, 1, 1, 1, 1, 1, 1, 1, 4], [0, 0.000893327, 0.001719379, 0.002494866, 0.003250964, 0.004016302, 0.004811942, 0.005664141, 0.006591873], False, 3, [1, 1, 1, 1, 1, 1, 1, 1, 1, 1, 1], False), False)
sketch2.addGeometry(Part.BSplineCurve([App.Vector(30.839418, -225.505725, 0), App.Vector(30.838016, -225.758436, 0), App.Vector(30.835334, -226.24183, 0), App.Vector(30.826875, -226.933937, 0), App.Vector(30.806484, -227.561582, 0), App.Vector(30.77783, -228.123266, 0), App.Vector(30.735891, -228.618449, 0), App.Vector(30.692184, -229.048139, 0), App.Vector(30.638735, -229.411791, 0), App.Vector(30.591107, -229.630703, 0), App.Vector(30.569747, -229.728882, 0)], [4, 1, 1, 1, 1, 1, 1, 1, 4], [0, 0.00075815, 0.001450212, 0.002076384, 0.002641992, 0.003137218, 0.003567068, 0.003937665, 0.004239027], False, 3, [1, 1, 1, 1, 1, 1, 1, 1, 1, 1, 1], False), False)
sketch2.addGeometry(Part.LineSegment(App.Vector(30.839418, -225.505725, 0), App.Vector(30.839418, -216.774475, 0)), False)
sketch2.addGeometry(Part.LineSegment(App.Vector(30.839418, -216.774475, 0), App.Vector(33.118906, -216.774475, 0)), False)
sketch2.addGeometry(Part.LineSegment(App.Vector(33.118906, -216.774475, 0), App.Vector(33.118906, -226.253681, 0)), False)
sketch2.addGeometry(Part.BSplineCurve([App.Vector(26.178681, -235.661654, 0), App.Vector(26.522166, -235.648989, 0), App.Vector(27.19445, -235.6242, 0), App.Vector(28.173279, -235.428136, 0), App.Vector(29.087486, -235.093254, 0), App.Vector(29.933811, -234.634515, 0), App.Vector(30.696734, -234.064056, 0), App.Vector(31.366749, -233.399463, 0), App.Vector(31.920928, -232.635024, 0), App.Vector(32.292474, -231.925833, 0), App.Vector(32.537226, -231.29672, 0), App.Vector(32.691312, -230.757901, 0), App.Vector(32.822166, -230.157604, 0), App.Vector(32.935607, -229.497642, 0), App.Vector(33.012367, -228.773392, 0), App.Vector(33.072908, -227.987823, 0), App.Vector(33.116296, -227.14119, 0), App.Vector(33.118018, -226.555635, 0), App.Vector(33.118906, -226.253681, 0)], [4, 1, 1, 1, 1, 1, 1, 1, 1, 1, 1, 1, 1, 1, 1, 1, 4], [0, 0.001029931, 0.002015823, 0.002980009, 0.003940792, 0.004893294, 0.005828738, 0.006760965, 0.007714567, 0.00822198, 0.008783915, 0.009393749, 0.010064612, 0.010791701, 0.01157765, 0.012428344, 0.01333409], False, 3, [1, 1, 1, 1, 1, 1, 1, 1, 1, 1, 1, 1, 1, 1, 1, 1, 1, 1, 1], False), False)
sketch2.addGeometry(Part.BSplineCurve([App.Vector(19.116341, -231.988016, 0), App.Vector(19.359729, -232.291675, 0), App.Vector(19.832031, -232.880935, 0), App.Vector(20.618591, -233.655422, 0), App.Vector(21.449853, -234.293653, 0), App.Vector(22.320724, -234.802406, 0), App.Vector(23.232389, -235.185921, 0), App.Vector(24.179288, -235.462897, 0), App.Vector(25.167092, -235.628975, 0), App.Vector(25.838845, -235.650676, 0), App.Vector(26.178681, -235.661654, 0)], [4, 1, 1, 1, 1, 1, 1, 1, 4], [0, 0.001166783, 0.002264183, 0.003302214, 0.004303182, 0.005281297, 0.006261883, 0.007257301, 0.008276467], False, 3, [1, 1, 1, 1, 1, 1, 1, 1, 1, 1, 1], False), False)
sketch2.addGeometry(Part.LineSegment(App.Vector(19.116341, -231.988016, 0), App.Vector(19.116341, -235.336013, 0)), False)
sketch2.addGeometry(Part.LineSegment(App.Vector(42.888136, -242.825757, 0), App.Vector(40.608649, -242.825757, 0)), False)
sketch2.addGeometry(Part.LineSegment(App.Vector(40.608649, -242.825757, 0), App.Vector(40.608649, -235.336013, 0)), False)
sketch2.addGeometry(Part.LineSegment(App.Vector(40.608649, -235.336013, 0), App.Vector(37.352239, -235.336013, 0)), False)
sketch2.addGeometry(Part.LineSegment(App.Vector(37.352239, -235.336013, 0), App.Vector(37.352239, -233.056526, 0)), False)
sketch2.addGeometry(Part.LineSegment(App.Vector(37.352239, -233.056526, 0), App.Vector(40.608649, -233.056526, 0)), False)
sketch2.addGeometry(Part.LineSegment(App.Vector(40.608649, -233.056526, 0), App.Vector(40.608649, -216.774475, 0)), False)
sketch2.addGeometry(Part.LineSegment(App.Vector(40.608649, -216.774475, 0), App.Vector(42.888136, -216.774475, 0)), False)
sketch2.addGeometry(Part.LineSegment(App.Vector(42.888136, -216.774475, 0), App.Vector(42.888136, -233.056526, 0)), False)
sketch2.addGeometry(Part.LineSegment(App.Vector(42.888136, -233.056526, 0), App.Vector(46.144547, -233.056526, 0)), False)
sketch2.addGeometry(Part.LineSegment(App.Vector(46.144547, -233.056526, 0), App.Vector(46.144547, -235.336013, 0)), False)
sketch2.addGeometry(Part.LineSegment(App.Vector(46.144547, -235.336013, 0), App.Vector(42.888136, -235.336013, 0)), False)
sketch2.addGeometry(Part.LineSegment(App.Vector(42.888136, -235.336013, 0), App.Vector(42.888136, -242.825757, 0)), False)
sketch2.addConstraint(Sketcher.Constraint("Block", 14))
sketch2.addConstraint(Sketcher.Constraint("Block", 15))
sketch2.addConstraint(Sketcher.Constraint("Block", 16))
sketch2.addConstraint(Sketcher.Constraint("Block", 18))
sketch2.addConstraint(Sketcher.Constraint("Block", 19))
sketch2.addConstraint(Sketcher.Constraint("Block", 21))
sketch2.addConstraint(Sketcher.Constraint("Block", 22))
sketch2.addConstraint(Sketcher.Constraint("Block", 23))
sketch2.addConstraint(Sketcher.Constraint("Block", 24))
sketch2.addConstraint(Sketcher.Constraint("Block", 25))
sketch2.addConstraint(Sketcher.Constraint("Block", 26))
sketch2.addConstraint(Sketcher.Constraint("Block", 27))
sketch2.addConstraint(Sketcher.Constraint("Block", 28))
sketch2.addConstraint(Sketcher.Constraint("Block", 29))
sketch2.addConstraint(Sketcher.Constraint("Block", 30))
sketch2.addConstraint(Sketcher.Constraint("Block", 35))
sketch2.addConstraint(Sketcher.Constraint("Block", 36))
sketch2.addConstraint(Sketcher.Constraint("Block", 37))
sketch2.addConstraint(Sketcher.Constraint("Block", 38))
sketch2.addConstraint(Sketcher.Constraint("Block", 42))
sketch2.addConstraint(Sketcher.Constraint("Block", 43))
sketch2.addConstraint(Sketcher.Constraint("Coincident", 0, 2, 1, 1))
sketch2.addConstraint(Sketcher.Constraint("Coincident", 1, 2, 2, 1))
sketch2.addConstraint(Sketcher.Constraint("Coincident", 2, 2, 3, 1))
sketch2.addConstraint(Sketcher.Constraint("Coincident", 3, 2, 4, 1))
sketch2.addConstraint(Sketcher.Constraint("Coincident", 4, 2, 5, 1))
sketch2.addConstraint(Sketcher.Constraint("Coincident", 5, 2, 6, 1))
sketch2.addConstraint(Sketcher.Constraint("Coincident", 6, 2, 7, 1))
sketch2.addConstraint(Sketcher.Constraint("Coincident", 7, 2, 8, 1))
sketch2.addConstraint(Sketcher.Constraint("Coincident", 8, 2, 9, 1))
sketch2.addConstraint(Sketcher.Constraint("Coincident", 9, 2, 0, 1))
sketch2.addConstraint(Sketcher.Constraint("Coincident", 10, 2, 11, 1))
sketch2.addConstraint(Sketcher.Constraint("Coincident", 11, 2, 12, 1))
sketch2.addConstraint(Sketcher.Constraint("Coincident", 12, 2, 13, 1))
sketch2.addConstraint(Sketcher.Constraint("Coincident", 13, 2, 14, 2))
sketch2.addConstraint(Sketcher.Constraint("Coincident", 16, 1, 17, 1))
sketch2.addConstraint(Sketcher.Constraint("Coincident", 17, 2, 18, 2))
sketch2.addConstraint(Sketcher.Constraint("Coincident", 19, 1, 20, 1))
sketch2.addConstraint(Sketcher.Constraint("Coincident", 20, 2, 10, 1))
sketch2.addConstraint(Sketcher.Constraint("Coincident", 31, 2, 32, 1))
sketch2.addConstraint(Sketcher.Constraint("Coincident", 32, 2, 33, 1))
sketch2.addConstraint(Sketcher.Constraint("Coincident", 33, 2, 34, 1))
sketch2.addConstraint(Sketcher.Constraint("Coincident", 34, 2, 35, 2))
sketch2.addConstraint(Sketcher.Constraint("Coincident", 38, 1, 39, 1))
sketch2.addConstraint(Sketcher.Constraint("Coincident", 39, 2, 40, 1))
sketch2.addConstraint(Sketcher.Constraint("Coincident", 40, 2, 41, 1))
sketch2.addConstraint(Sketcher.Constraint("Coincident", 41, 2, 42, 2))
sketch2.addConstraint(Sketcher.Constraint("Coincident", 43, 1, 44, 1))
sketch2.addConstraint(Sketcher.Constraint("Coincident", 44, 2, 31, 1))
sketch2.addConstraint(Sketcher.Constraint("Coincident", 45, 2, 46, 1))
sketch2.addConstraint(Sketcher.Constraint("Coincident", 46, 2, 47, 1))
sketch2.addConstraint(Sketcher.Constraint("Coincident", 47, 2, 48, 1))
sketch2.addConstraint(Sketcher.Constraint("Coincident", 48, 2, 49, 1))
sketch2.addConstraint(Sketcher.Constraint("Coincident", 49, 2, 50, 1))
sketch2.addConstraint(Sketcher.Constraint("Coincident", 50, 2, 51, 1))
sketch2.addConstraint(Sketcher.Constraint("Coincident", 51, 2, 52, 1))
sketch2.addConstraint(Sketcher.Constraint("Coincident", 52, 2, 53, 1))
sketch2.addConstraint(Sketcher.Constraint("Coincident", 53, 2, 54, 1))
sketch2.addConstraint(Sketcher.Constraint("Coincident", 54, 2, 55, 1))
sketch2.addConstraint(Sketcher.Constraint("Coincident", 55, 2, 56, 1))
sketch2.addConstraint(Sketcher.Constraint("Coincident", 56, 2, 45, 1))
sketch2.addConstraint(Sketcher.Constraint("Horizontal", 0))
sketch2.addConstraint(Sketcher.Constraint("Vertical", 1))
sketch2.addConstraint(Sketcher.Constraint("Horizontal", 2))
sketch2.addConstraint(Sketcher.Constraint("Vertical", 3))
sketch2.addConstraint(Sketcher.Constraint("Horizontal", 4))
sketch2.addConstraint(Sketcher.Constraint("Vertical", 5))
sketch2.addConstraint(Sketcher.Constraint("Horizontal", 6))
sketch2.addConstraint(Sketcher.Constraint("Vertical", 7))
sketch2.addConstraint(Sketcher.Constraint("Horizontal", 8))
sketch2.addConstraint(Sketcher.Constraint("Vertical", 9))
sketch2.addConstraint(Sketcher.Constraint("Horizontal", 10))
sketch2.addConstraint(Sketcher.Constraint("Vertical", 11))
sketch2.addConstraint(Sketcher.Constraint("Horizontal", 12))
sketch2.addConstraint(Sketcher.Constraint("Vertical", 13))
sketch2.addConstraint(Sketcher.Constraint("Vertical", 20))
sketch2.addConstraint(Sketcher.Constraint("Horizontal", 31))
sketch2.addConstraint(Sketcher.Constraint("Vertical", 32))
sketch2.addConstraint(Sketcher.Constraint("Horizontal", 33))
sketch2.addConstraint(Sketcher.Constraint("Vertical", 34))
sketch2.addConstraint(Sketcher.Constraint("Vertical", 39))
sketch2.addConstraint(Sketcher.Constraint("Horizontal", 40))
sketch2.addConstraint(Sketcher.Constraint("Vertical", 41))
sketch2.addConstraint(Sketcher.Constraint("Vertical", 44))
sketch2.addConstraint(Sketcher.Constraint("Horizontal", 45))
sketch2.addConstraint(Sketcher.Constraint("Vertical", 46))
sketch2.addConstraint(Sketcher.Constraint("Horizontal", 47))
sketch2.addConstraint(Sketcher.Constraint("Vertical", 48))
sketch2.addConstraint(Sketcher.Constraint("Horizontal", 49))
sketch2.addConstraint(Sketcher.Constraint("Vertical", 50))
sketch2.addConstraint(Sketcher.Constraint("Horizontal", 51))
sketch2.addConstraint(Sketcher.Constraint("Vertical", 52))
sketch2.addConstraint(Sketcher.Constraint("Horizontal", 53))
sketch2.addConstraint(Sketcher.Constraint("Vertical", 54))
sketch2.addConstraint(Sketcher.Constraint("Horizontal", 55))
sketch2.addConstraint(Sketcher.Constraint("Vertical", 56))
sketch2.addConstraint(Sketcher.Constraint("DistanceY", 1, 1, 1, 2, Q("1 in")))
sketch2.addConstraint(Sketcher.Constraint("DistanceX", 17, 2, 31, 2, Q("1 in")))
sketch2.addConstraint(Sketcher.Constraint("DistanceY", 39, 1, 39, 2, Q("0.34375 in")))
sketch2.addConstraint(Sketcher.Constraint("DistanceX", 0, 2, 0, 1, Q("12.374359 mm")))
sketch2.addConstraint(Sketcher.Constraint("DistanceX", 4, 1, 4, 2, Q("10.094872 mm")))
sketch2.addConstraint(Sketcher.Constraint("DistanceX", 6, 2, 6, 1, Q("10.094872 mm")))
sketch2.addConstraint(Sketcher.Constraint("DistanceX", 8, 1, 8, 2, Q("10.094872 mm")))
sketch2.addConstraint(Sketcher.Constraint("DistanceX", 47, 2, 47, 1, Q("3.25641 mm")))
sketch2.addConstraint(Sketcher.Constraint("DistanceX", 49, 1, 49, 2, Q("3.25641 mm")))
sketch2.addConstraint(Sketcher.Constraint("DistanceX", 53, 1, 53, 2, Q("3.25641 mm")))
sketch2.addConstraint(Sketcher.Constraint("DistanceX", 55, 2, 55, 1, Q("3.25641 mm")))
sketch2.addConstraint(Sketcher.Constraint("DistanceY", 3, 2, 3, 1, Q("12.374359 mm")))
sketch2.addConstraint(Sketcher.Constraint("DistanceY", 5, 2, 5, 1, Q("2.605128 mm")))
sketch2.addConstraint(Sketcher.Constraint("DistanceY", 9, 2, 9, 1, Q("2.605128 mm")))
sketch2.addConstraint(Sketcher.Constraint("DistanceY", 11, 1, 11, 2, Q("18.561538 mm")))
sketch2.addConstraint(Sketcher.Constraint("DistanceY", 13, 2, 13, 1, Q("6.238061 mm")))
sketch2.addConstraint(Sketcher.Constraint("DistanceY", 32, 1, 32, 2, Q("18.561538 mm")))
sketch2.addConstraint(Sketcher.Constraint("DistanceY", 34, 2, 34, 1, Q("6.711258 mm")))
sketch2.addConstraint(Sketcher.Constraint("DistanceY", 50, 1, 50, 2, Q("16.282051 mm")))
sketch2.addConstraint(Sketcher.Constraint("DistanceY", 52, 2, 52, 1, Q("16.282051 mm")))
sketch2.addConstraint(Sketcher.Constraint("DistanceY", 4, 2, 13, 2, Q("6.136298 mm")))
sketch2.addConstraint(Sketcher.Constraint("DistanceX", 10, 2, 10, 1, Q("2.279487 mm")))
sketch2.addConstraint(Sketcher.Constraint("DistanceX", 45, 2, 45, 1, Q("2.279487 mm")))
sketch2.addConstraint(Sketcher.Constraint("DistanceY", 46, 1, 46, 2, Q("7.489744 mm")))
sketch2.addConstraint(Sketcher.Constraint("DistanceY", 48, 1, 48, 2, Q("2.279487 mm")))
sketch2.addConstraint(Sketcher.Constraint("DistanceY", 54, 2, 54, 1, Q("2.279487 mm")))
sketch2.addConstraint(Sketcher.Constraint("DistanceX", -1, 1, 45, 2, Q("40.608649 mm")))
sketch2.addConstraint(Sketcher.Constraint("DistanceX", 5, 2, 10, 2, Q("3.25641 mm")))
sketch2.addConstraint(Sketcher.Constraint("DistanceY", 46, 2, 41, 2, Q("9.082332 mm")))
pocket1 = body.newObject("PartDesign::Pocket", "Pocket")
pocket1.Profile = sketch2
pocket1.Length = Q("0.1 in")
pocket1.Reversed = True

doc.recompute()
